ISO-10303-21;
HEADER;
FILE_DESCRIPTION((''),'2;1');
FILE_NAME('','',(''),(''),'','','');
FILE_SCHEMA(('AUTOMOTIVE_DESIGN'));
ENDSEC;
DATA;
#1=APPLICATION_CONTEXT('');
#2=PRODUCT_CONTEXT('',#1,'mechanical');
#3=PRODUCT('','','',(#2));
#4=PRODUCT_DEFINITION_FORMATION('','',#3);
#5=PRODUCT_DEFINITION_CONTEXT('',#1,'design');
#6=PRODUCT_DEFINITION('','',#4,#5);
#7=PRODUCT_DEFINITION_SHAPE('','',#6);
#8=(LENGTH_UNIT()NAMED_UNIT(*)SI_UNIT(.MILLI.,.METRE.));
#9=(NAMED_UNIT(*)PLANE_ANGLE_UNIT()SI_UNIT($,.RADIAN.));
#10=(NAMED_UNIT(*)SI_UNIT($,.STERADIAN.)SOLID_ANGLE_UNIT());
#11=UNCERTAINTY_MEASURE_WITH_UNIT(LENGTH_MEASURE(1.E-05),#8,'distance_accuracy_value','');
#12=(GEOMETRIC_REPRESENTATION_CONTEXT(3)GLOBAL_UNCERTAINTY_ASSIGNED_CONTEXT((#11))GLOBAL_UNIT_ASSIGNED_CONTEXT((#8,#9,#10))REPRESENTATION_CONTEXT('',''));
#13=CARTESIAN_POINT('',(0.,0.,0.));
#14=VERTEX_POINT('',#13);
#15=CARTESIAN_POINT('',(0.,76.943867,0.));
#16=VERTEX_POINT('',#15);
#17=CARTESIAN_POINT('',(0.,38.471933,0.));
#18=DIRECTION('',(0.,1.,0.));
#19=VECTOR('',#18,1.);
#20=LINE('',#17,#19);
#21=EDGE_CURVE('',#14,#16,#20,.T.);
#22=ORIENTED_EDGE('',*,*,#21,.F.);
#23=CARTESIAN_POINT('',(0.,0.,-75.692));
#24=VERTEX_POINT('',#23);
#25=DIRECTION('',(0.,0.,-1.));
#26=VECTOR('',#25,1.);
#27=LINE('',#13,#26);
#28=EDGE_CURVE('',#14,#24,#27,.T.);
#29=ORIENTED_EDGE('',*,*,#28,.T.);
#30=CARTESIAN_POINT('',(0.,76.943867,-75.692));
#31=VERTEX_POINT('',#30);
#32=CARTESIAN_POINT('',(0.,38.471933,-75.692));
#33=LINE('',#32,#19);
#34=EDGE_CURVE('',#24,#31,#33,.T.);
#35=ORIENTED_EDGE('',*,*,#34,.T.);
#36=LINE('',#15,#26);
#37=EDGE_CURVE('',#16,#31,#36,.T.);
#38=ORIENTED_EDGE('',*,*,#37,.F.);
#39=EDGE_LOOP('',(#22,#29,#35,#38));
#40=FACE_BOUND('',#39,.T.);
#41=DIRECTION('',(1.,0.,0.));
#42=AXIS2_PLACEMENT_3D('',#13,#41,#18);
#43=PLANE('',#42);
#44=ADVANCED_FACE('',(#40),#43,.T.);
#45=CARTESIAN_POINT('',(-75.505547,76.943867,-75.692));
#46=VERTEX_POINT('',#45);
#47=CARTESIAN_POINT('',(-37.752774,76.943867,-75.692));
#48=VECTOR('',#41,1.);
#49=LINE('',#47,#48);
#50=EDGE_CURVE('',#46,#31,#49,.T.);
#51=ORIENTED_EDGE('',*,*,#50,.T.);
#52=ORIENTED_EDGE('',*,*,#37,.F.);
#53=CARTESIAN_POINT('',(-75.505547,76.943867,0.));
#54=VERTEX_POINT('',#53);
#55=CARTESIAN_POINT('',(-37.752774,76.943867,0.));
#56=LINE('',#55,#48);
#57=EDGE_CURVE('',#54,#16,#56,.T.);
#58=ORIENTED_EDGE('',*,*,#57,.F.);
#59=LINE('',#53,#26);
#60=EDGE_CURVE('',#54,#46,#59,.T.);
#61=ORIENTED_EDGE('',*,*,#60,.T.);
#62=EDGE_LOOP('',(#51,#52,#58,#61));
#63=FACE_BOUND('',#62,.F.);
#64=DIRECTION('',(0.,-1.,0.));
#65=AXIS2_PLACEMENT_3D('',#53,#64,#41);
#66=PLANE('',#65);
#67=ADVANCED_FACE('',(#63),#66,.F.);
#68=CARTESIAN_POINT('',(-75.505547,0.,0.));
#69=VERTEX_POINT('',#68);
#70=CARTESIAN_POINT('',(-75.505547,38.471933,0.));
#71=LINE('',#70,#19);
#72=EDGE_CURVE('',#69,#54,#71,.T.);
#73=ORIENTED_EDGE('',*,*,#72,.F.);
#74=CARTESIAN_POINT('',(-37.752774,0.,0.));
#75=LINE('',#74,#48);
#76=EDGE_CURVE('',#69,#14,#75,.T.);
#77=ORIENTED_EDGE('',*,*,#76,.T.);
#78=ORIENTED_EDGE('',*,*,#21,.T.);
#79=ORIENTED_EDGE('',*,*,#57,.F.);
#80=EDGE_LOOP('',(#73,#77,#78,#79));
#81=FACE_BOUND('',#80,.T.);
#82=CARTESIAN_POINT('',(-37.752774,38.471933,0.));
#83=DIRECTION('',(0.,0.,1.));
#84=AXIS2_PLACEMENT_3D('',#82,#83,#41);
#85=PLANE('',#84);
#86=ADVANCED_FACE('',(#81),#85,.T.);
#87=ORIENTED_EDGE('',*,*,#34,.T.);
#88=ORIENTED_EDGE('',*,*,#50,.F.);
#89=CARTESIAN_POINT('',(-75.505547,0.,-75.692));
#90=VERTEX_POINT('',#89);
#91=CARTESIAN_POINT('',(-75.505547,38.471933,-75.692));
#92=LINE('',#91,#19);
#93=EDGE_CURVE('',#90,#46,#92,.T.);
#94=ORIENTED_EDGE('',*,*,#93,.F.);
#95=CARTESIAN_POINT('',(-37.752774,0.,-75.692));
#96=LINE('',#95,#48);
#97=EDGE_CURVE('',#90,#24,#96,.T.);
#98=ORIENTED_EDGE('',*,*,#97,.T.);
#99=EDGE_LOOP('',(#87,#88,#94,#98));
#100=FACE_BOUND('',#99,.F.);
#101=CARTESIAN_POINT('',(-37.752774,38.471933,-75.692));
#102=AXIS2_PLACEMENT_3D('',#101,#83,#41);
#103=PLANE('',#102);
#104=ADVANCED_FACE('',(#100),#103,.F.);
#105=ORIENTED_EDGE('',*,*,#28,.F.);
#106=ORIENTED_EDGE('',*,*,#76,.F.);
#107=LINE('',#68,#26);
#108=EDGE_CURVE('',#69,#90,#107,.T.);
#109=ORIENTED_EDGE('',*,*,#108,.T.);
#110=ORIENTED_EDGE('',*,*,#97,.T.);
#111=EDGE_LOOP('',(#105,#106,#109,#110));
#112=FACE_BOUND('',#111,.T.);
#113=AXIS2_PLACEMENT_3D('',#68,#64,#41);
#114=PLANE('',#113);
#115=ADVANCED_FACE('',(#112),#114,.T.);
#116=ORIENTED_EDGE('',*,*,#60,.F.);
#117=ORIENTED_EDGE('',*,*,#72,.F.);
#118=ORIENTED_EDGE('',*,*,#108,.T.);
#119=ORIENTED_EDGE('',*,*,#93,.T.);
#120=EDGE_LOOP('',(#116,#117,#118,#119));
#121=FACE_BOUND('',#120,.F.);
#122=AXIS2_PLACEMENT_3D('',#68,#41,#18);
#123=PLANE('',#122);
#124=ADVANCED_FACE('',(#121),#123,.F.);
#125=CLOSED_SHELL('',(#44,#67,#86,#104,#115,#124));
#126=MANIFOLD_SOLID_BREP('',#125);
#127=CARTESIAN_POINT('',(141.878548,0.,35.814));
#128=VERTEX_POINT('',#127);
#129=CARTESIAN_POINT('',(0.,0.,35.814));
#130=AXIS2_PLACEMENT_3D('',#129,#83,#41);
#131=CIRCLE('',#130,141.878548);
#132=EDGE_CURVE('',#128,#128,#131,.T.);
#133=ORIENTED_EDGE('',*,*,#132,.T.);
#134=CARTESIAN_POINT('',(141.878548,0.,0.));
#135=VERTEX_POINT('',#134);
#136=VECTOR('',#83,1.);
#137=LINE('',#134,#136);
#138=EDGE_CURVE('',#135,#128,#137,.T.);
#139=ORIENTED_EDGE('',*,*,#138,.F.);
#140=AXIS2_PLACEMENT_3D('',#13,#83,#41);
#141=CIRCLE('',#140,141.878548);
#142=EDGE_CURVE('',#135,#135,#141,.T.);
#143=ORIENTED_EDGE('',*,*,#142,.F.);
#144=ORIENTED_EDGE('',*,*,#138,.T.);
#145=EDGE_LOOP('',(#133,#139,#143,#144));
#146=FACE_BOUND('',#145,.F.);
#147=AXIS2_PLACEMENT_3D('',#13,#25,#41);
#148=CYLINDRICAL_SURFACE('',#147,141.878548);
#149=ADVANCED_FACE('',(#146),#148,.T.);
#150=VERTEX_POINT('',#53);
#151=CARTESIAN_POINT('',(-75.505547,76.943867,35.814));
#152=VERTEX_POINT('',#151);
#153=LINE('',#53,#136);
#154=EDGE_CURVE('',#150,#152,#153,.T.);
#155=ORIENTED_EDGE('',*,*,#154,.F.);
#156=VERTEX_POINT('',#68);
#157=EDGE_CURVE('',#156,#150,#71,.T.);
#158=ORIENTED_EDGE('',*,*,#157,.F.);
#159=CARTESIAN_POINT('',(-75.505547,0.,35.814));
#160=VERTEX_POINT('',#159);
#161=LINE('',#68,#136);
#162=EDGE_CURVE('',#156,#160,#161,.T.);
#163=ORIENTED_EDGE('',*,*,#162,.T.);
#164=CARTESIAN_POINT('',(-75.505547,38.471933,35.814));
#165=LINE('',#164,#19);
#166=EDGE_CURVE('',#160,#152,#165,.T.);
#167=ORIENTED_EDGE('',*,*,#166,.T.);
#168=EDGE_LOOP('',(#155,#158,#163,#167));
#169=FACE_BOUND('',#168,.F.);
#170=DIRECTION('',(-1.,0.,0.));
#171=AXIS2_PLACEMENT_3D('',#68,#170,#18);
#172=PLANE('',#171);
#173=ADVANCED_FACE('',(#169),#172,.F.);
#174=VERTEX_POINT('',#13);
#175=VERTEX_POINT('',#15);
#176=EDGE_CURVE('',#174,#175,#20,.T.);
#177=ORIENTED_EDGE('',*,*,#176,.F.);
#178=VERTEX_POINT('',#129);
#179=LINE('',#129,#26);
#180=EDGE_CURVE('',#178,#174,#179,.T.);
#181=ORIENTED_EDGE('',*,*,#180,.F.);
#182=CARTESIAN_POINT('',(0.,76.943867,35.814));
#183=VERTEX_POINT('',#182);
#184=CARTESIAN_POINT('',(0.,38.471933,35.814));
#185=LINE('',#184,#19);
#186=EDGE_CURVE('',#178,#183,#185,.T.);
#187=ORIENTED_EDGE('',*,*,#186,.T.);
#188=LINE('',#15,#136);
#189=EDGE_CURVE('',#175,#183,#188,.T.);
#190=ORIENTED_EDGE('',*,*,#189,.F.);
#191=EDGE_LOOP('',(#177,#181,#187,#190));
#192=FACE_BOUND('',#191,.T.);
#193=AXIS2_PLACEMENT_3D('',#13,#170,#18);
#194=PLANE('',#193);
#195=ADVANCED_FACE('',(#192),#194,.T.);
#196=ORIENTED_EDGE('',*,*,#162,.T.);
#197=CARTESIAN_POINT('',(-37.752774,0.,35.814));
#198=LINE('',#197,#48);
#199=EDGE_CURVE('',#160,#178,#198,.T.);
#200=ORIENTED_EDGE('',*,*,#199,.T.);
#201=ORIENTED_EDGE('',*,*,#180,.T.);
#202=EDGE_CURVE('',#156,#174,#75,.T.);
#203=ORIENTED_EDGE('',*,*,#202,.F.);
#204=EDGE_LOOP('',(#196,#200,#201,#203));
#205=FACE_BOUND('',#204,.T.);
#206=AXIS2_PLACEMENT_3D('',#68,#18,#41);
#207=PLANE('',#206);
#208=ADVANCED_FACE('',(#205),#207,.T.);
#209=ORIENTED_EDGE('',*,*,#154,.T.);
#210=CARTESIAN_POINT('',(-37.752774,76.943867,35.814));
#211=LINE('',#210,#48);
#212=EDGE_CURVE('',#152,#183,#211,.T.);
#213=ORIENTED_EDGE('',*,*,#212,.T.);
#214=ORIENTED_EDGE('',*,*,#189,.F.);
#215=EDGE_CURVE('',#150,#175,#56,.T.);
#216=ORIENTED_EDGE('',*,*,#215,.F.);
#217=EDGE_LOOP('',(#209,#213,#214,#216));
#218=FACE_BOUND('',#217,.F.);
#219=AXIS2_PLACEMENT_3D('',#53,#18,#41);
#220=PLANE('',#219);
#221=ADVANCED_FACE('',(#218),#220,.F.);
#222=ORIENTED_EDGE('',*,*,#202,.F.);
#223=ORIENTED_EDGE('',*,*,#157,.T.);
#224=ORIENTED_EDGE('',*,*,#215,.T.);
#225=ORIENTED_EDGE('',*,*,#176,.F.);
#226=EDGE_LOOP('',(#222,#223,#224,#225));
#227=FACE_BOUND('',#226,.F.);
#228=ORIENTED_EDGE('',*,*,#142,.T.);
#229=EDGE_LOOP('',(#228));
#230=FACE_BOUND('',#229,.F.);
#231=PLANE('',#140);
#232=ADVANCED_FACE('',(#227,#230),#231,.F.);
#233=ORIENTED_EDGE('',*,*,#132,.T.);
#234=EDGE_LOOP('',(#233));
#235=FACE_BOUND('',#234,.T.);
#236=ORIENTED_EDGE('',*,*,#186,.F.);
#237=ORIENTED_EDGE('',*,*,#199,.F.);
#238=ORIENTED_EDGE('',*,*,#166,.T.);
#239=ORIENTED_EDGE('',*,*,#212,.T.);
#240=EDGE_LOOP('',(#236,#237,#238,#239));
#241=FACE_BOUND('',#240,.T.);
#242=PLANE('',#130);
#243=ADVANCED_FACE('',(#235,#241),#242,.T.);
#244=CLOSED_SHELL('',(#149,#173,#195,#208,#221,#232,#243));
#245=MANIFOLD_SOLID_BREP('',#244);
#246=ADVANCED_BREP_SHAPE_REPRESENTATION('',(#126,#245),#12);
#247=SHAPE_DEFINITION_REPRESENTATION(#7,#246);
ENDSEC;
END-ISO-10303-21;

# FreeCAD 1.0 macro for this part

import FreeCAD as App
import Part
import Sketcher
Q = App.Units.Quantity


def add_polygon(sketch, points):
    """Adds a closed chain of lines whose ends are joined by coincident constraints."""
    first, n = sketch.GeometryCount, len(points)
    for a, b in zip(points, points[1:] + points[:1]):
        sketch.addGeometry(Part.LineSegment(App.Vector(*a, 0), App.Vector(*b, 0)), False)
    for i in range(n):
        sketch.addConstraint(Sketcher.Constraint("Coincident", first + i, 2, first + (i + 1) % n, 1))

doc = App.newDocument("Part")
body = doc.addObject("PartDesign::Body", "Body")

# Sketch on XY plane
sketch1 = body.newObject("Sketcher::SketchObject", "Sketch")
sketch1.AttachmentSupport = (doc.getObject("XY_Plane"), [""])
sketch1.MapMode = "FlatFace"
add_polygon(sketch1, [(-76, 77), (-76, 0), (0, 0), (0, 77)])  # lines 0-3
sketch1.addConstraint([
    Sketcher.Constraint("Vertical", 0),
    Sketcher.Constraint("Horizontal", 1),
    Sketcher.Constraint("Vertical", 2),
    Sketcher.Constraint("Horizontal", 3),
    Sketcher.Constraint("Coincident", 1, 2, -1, 1),
    Sketcher.Constraint("DistanceX", 1, 1, 1, 2, Q("75.505547 mm")),
    Sketcher.Constraint("DistanceY", 0, 2, 0, 1, Q("76.943867 mm")),
])
pad1 = body.newObject("PartDesign::Pad", "Pad")
pad1.Profile = sketch1
pad1.Length = Q("2.98 in")
pad1.Reversed = True
body2 = doc.addObject("PartDesign::Body", "Body001")

# Sketch on XY plane
sketch2 = body2.newObject("Sketcher::SketchObject", "Sketch001")
sketch2.AttachmentSupport = (doc.getObject("XY_Plane001"), [""])
sketch2.MapMode = "FlatFace"
sketch2.addGeometry(Part.Circle(App.Vector(0, 0, 0), App.Vector(0, 0, 1), 142), False)  # 0
add_polygon(sketch2, [(0, 0), (-76, 0), (-76, 77), (0, 77)])  # lines 1-4
sketch2.addConstraint([
    Sketcher.Constraint("Horizontal", 1),
    Sketcher.Constraint("Vertical", 2),
    Sketcher.Constraint("Horizontal", 3),
    Sketcher.Constraint("Vertical", 4),
    Sketcher.Constraint("Coincident", 0, 3, -1, 1),
    Sketcher.Constraint("Coincident", 4, 2, -1, 1),
    Sketcher.Constraint("Diameter", 0, Q("283.757097 mm")),
    Sketcher.Constraint("DistanceX", 1, 2, 1, 1, Q("75.505547 mm")),
    Sketcher.Constraint("DistanceY", 2, 1, 2, 2, Q("76.943867 mm")),
])
pad2 = body2.newObject("PartDesign::Pad", "Pad001")
pad2.Profile = sketch2
pad2.Length = Q("1.41 in")
body.AllowCompound = True
doc.recompute()

boolean = body.newObject("PartDesign::Boolean", "Boolean")
boolean.Type = "Fuse"
boolean.addObjects([body2])

# Sketch on XY plane
sketch3 = body.newObject("Sketcher::SketchObject", "Sketch002")
sketch3.AttachmentSupport = (doc.getObject("XY_Plane"), [""])
sketch3.MapMode = "FlatFace"
add_polygon(sketch3, [(-76, -76), (-76, 0), (74, 0), (74, -76)])  # lines 0-3
sketch3.addConstraint([
    Sketcher.Constraint("Vertical", 0),
    Sketcher.Constraint("Horizontal", 1),
    Sketcher.Constraint("Vertical", 2),
    Sketcher.Constraint("Horizontal", 3),
    Sketcher.Constraint("PointOnObject", 0, 2, -1),
    Sketcher.Constraint("DistanceX", 1, 1, 1, 2, Q("149.706438 mm")),
    Sketcher.Constraint("DistanceY", 0, 1, 0, 2, Q("76.227151 mm")),
    Sketcher.Constraint("DistanceX", 0, 2, -1, 1, Q("75.551659 mm")),
])
pad3 = body.newObject("PartDesign::Pad", "Pad002")
pad3.Profile = sketch3
pad3.Length = Q("1 in")

doc.recompute()
